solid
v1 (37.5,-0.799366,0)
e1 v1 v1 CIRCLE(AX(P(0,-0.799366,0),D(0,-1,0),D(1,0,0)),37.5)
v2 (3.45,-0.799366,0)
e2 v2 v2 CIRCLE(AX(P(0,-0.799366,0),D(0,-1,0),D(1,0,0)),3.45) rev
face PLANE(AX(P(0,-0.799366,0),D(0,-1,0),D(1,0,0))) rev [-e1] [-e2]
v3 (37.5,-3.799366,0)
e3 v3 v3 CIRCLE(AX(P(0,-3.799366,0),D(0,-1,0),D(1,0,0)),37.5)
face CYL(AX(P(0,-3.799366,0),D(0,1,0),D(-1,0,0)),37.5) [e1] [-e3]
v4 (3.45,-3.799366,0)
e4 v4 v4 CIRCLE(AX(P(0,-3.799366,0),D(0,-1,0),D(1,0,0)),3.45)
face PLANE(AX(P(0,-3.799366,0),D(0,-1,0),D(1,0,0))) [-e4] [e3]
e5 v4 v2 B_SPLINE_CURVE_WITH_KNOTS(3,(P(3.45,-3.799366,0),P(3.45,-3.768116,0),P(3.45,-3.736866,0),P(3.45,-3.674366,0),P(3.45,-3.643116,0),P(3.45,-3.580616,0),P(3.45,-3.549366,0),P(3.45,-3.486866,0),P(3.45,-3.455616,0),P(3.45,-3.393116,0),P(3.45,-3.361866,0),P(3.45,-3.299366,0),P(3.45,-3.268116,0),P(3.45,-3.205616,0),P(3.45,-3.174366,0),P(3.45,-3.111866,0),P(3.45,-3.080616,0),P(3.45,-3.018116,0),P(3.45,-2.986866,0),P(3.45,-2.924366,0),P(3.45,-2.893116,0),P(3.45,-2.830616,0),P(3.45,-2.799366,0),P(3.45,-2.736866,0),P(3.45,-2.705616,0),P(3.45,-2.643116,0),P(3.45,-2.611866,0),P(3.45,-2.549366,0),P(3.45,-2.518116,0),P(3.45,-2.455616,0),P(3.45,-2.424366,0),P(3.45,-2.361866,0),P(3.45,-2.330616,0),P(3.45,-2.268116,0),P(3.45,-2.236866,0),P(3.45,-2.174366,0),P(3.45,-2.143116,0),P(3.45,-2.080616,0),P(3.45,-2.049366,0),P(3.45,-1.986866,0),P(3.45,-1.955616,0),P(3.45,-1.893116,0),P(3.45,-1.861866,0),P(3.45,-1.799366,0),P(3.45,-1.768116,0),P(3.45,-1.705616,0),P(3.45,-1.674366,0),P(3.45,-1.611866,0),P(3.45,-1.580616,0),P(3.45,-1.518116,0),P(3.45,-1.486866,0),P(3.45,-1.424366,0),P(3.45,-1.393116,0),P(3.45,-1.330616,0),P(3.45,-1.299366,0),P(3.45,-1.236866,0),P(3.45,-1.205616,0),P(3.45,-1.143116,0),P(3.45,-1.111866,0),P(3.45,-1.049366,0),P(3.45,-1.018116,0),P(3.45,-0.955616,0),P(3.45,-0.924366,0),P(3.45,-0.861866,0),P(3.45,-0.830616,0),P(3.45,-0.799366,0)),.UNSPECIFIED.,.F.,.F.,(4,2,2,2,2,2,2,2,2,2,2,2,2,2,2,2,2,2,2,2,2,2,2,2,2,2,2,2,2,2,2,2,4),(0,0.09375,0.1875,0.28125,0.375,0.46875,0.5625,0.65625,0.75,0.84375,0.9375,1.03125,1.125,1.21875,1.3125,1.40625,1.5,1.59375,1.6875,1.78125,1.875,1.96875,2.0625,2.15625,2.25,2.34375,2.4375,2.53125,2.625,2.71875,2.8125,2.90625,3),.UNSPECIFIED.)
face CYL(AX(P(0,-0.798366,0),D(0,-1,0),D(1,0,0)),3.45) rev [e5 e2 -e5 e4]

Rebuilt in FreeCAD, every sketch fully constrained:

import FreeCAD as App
import Part
import Sketcher

V = App.Vector

doc = App.newDocument("Part")
body = doc.addObject("PartDesign::Body", "Body")

# Sketch on XZ plane
sketch1 = body.newObject("Sketcher::SketchObject", "Sketch")
sketch1.AttachmentSupport = (doc.getObject("XZ_Plane"), [""])
sketch1.MapMode = "FlatFace"
sketch1.AttachmentOffset = App.Placement(V(0, 0, 0.799366), App.Rotation())
sketch1.addGeometry(Part.Circle(V(0, 0, 0), V(0, 0, 1), 38), False)
sketch1.addConstraint([
    Sketcher.Constraint("Coincident", 0, 3, -1, 1),
    Sketcher.Constraint("Diameter", 0, 75.0),
])
pad1 = body.newObject("PartDesign::Pad", "Pad")
pad1.Profile = sketch1
pad1.Length = 3

# Sketch on XZ plane
sketch2 = body.newObject("Sketcher::SketchObject", "Sketch001")
sketch2.AttachmentSupport = (doc.getObject("XZ_Plane"), [""])
sketch2.MapMode = "FlatFace"
sketch2.AttachmentOffset = App.Placement(V(0, 0, 3.799366), App.Rotation())
sketch2.addGeometry(Part.Circle(V(0, 0, 0), V(0, 0, 1), 3.5), False)
sketch2.addConstraint([
    Sketcher.Constraint("Coincident", 0, 3, -1, 1),
    Sketcher.Constraint("Diameter", 0, 6.9),
])
pocket1 = body.newObject("PartDesign::Pocket", "Pocket")
pocket1.Profile = sketch2
pocket1.Type = "UpToFirst"

doc.recompute()
